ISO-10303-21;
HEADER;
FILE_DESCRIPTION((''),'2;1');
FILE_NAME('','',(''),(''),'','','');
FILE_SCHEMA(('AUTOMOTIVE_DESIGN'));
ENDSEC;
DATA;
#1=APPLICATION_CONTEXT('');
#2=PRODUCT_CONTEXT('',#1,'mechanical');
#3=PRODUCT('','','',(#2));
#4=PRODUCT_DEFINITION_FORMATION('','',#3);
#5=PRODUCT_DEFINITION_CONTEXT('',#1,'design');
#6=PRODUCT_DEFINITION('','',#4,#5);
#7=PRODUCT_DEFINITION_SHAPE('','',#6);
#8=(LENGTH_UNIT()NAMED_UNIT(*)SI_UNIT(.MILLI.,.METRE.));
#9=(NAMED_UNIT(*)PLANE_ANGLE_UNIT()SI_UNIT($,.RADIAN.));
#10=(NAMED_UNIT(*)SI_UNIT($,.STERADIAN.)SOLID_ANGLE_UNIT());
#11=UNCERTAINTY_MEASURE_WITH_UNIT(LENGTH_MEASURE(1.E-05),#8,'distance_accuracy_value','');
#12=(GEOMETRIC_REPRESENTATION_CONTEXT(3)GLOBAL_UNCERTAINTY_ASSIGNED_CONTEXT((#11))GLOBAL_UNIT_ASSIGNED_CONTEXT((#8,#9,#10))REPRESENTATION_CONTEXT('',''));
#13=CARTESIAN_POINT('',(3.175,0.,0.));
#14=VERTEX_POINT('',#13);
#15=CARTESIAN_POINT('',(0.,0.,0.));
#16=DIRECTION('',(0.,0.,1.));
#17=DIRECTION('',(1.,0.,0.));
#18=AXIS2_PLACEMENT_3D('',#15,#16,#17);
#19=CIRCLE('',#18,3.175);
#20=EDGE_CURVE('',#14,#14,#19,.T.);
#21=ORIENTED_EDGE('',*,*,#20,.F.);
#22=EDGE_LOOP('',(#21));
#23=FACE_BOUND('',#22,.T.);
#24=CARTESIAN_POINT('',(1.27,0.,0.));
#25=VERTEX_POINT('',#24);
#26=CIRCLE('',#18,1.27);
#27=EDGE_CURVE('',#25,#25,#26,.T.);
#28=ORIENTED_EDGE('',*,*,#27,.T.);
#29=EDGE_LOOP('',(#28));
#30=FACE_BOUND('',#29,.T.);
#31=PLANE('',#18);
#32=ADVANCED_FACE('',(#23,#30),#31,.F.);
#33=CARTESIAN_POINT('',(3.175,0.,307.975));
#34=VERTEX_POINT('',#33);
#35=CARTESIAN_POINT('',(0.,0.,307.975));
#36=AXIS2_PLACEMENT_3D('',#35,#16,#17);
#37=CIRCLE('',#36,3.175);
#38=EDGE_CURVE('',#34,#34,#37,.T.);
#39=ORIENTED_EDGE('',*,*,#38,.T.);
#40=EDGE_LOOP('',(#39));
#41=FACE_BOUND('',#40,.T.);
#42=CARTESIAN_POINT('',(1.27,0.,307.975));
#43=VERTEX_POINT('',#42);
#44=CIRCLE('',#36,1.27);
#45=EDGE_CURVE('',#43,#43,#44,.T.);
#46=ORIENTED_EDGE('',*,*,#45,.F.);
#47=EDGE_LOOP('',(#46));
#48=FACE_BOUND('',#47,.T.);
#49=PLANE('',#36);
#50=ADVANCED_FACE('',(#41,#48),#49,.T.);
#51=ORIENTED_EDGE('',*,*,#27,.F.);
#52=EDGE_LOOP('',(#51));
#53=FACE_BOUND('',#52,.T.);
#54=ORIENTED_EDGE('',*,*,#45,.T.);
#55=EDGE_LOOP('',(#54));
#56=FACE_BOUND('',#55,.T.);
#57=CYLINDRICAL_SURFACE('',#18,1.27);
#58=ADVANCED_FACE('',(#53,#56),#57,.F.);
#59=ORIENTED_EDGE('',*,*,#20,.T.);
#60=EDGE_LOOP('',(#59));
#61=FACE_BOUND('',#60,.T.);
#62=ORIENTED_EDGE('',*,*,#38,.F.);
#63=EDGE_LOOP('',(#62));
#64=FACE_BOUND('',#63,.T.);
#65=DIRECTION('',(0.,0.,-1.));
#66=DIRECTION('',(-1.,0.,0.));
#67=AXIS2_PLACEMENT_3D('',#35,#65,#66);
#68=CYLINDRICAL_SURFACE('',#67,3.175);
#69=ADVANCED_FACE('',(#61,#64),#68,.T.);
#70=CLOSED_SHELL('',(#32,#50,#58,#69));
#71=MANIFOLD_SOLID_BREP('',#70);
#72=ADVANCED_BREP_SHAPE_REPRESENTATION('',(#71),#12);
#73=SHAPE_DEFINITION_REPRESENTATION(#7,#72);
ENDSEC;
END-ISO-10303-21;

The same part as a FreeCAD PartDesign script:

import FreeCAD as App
import Part
import Sketcher
from FreeCAD import Vector
Q = App.Units.Quantity

doc = App.newDocument("Part")
body = doc.addObject("PartDesign::Body", "Body")

sketch1 = body.newObject("Sketcher::SketchObject", "Sketch")
sketch1.AttachmentSupport = (doc.getObject("XY_Plane"), [""])
sketch1.MapMode = "FlatFace"
sketch1.addGeometry(Part.Circle(Vector(0, 0, 0), Vector(0, 0, 1), 3.2), False)
sketch1.addConstraint(Sketcher.Constraint("Coincident", 0, 3, -1, 1))
sketch1.addConstraint(Sketcher.Constraint("Diameter", 0, Q("0.25 in")))
pad1 = body.newObject("PartDesign::Pad", "Pad")
pad1.Profile = sketch1
pad1.Length = Q("12.125 in")

sketch2 = body.newObject("Sketcher::SketchObject", "Sketch001")
sketch2.AttachmentSupport = (doc.getObject("XY_Plane"), [""])
sketch2.MapMode = "FlatFace"
sketch2.AttachmentOffset = App.Placement(Vector(0, 0, 12.125 * 25.4), App.Rotation())
sketch2.addGeometry(Part.Circle(Vector(0, 0, 0), Vector(0, 0, 1), 1.3), False)
sketch2.addConstraint(Sketcher.Constraint("Coincident", 0, 3, -1, 1))
sketch2.addConstraint(Sketcher.Constraint("Diameter", 0, Q("0.1 in")))
pocket1 = body.newObject("PartDesign::Pocket", "Pocket")
pocket1.Profile = sketch2
pocket1.Type = "ThroughAll"

doc.recompute()
